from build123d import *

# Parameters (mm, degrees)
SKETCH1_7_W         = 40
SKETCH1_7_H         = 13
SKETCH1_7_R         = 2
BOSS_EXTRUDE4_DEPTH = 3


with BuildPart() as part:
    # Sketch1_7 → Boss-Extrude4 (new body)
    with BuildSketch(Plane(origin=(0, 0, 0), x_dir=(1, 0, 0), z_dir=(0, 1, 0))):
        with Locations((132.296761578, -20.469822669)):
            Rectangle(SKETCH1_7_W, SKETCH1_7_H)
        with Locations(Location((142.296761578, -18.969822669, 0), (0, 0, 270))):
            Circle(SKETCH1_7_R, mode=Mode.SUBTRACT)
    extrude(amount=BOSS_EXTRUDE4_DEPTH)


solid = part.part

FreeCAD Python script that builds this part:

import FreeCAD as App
import Part
import Sketcher

V = App.Vector

doc = App.newDocument("Part")
params = doc.addObject("Spreadsheet::Sheet", "Params")
for row, (alias, value) in enumerate([
    ("sketch1_diameter", "4 mm"),
    ("sketch1_width", "40 mm"),
    ("sketch1_height", "13 mm"),
    ("pad1_length", "3 mm"),
], start=1):
    params.set(f"A{row}", alias)
    params.set(f"B{row}", "=" + value)
    params.setAlias(f"B{row}", alias)

body = doc.addObject("PartDesign::Body", "Body")

sketch1 = body.newObject("Sketcher::SketchObject", "Sketch")
sketch1.AttachmentSupport = (doc.getObject("XZ_Plane"), [""])
sketch1.MapMode = "FlatFace"
sketch1.addGeometry([
    Part.LineSegment(V(112.3, 14, 0), V(112.3, 27, 0)),
    Part.LineSegment(V(112.3, 27, 0), V(152.3, 27, 0)),
    Part.LineSegment(V(152.3, 27, 0), V(152.3, 14, 0)),
    Part.LineSegment(V(152.3, 14, 0), V(112.3, 14, 0)),
    Part.Circle(V(142.3, 19, 0), V(0, 0, 1), 2),
], False)
sketch1.addConstraint([
    Sketcher.Constraint("Coincident", 0, 2, 1, 1),
    Sketcher.Constraint("Coincident", 1, 2, 2, 1),
    Sketcher.Constraint("Coincident", 2, 2, 3, 1),
    Sketcher.Constraint("Coincident", 3, 2, 0, 1),
    Sketcher.Constraint("Vertical", 0),
    Sketcher.Constraint("Horizontal", 1),
    Sketcher.Constraint("Vertical", 2),
    Sketcher.Constraint("Horizontal", 3),
    Sketcher.Constraint("Diameter", 4, 4.0),
    Sketcher.Constraint("DistanceX", 1, 1, 1, 2, 40.0),
    Sketcher.Constraint("DistanceY", 0, 1, 0, 2, 13.0),
    Sketcher.Constraint("DistanceX", 0, 2, 4, 3, 30.0),
    Sketcher.Constraint("DistanceY", 4, 3, 0, 2, 8.0),
    Sketcher.Constraint("DistanceX", -1, 1, 4, 3, 142.296762),
    Sketcher.Constraint("DistanceY", -1, 1, 4, 3, 18.969823),
])
sketch1.setExpression("Constraints[8]", "Params.sketch1_diameter")
sketch1.setExpression("Constraints[9]", "Params.sketch1_width")
sketch1.setExpression("Constraints[10]", "Params.sketch1_height")
pad1 = body.newObject("PartDesign::Pad", "Pad")
pad1.Profile = sketch1
pad1.setExpression("Length", "Params.pad1_length")
pad1.Reversed = True

doc.recompute()
